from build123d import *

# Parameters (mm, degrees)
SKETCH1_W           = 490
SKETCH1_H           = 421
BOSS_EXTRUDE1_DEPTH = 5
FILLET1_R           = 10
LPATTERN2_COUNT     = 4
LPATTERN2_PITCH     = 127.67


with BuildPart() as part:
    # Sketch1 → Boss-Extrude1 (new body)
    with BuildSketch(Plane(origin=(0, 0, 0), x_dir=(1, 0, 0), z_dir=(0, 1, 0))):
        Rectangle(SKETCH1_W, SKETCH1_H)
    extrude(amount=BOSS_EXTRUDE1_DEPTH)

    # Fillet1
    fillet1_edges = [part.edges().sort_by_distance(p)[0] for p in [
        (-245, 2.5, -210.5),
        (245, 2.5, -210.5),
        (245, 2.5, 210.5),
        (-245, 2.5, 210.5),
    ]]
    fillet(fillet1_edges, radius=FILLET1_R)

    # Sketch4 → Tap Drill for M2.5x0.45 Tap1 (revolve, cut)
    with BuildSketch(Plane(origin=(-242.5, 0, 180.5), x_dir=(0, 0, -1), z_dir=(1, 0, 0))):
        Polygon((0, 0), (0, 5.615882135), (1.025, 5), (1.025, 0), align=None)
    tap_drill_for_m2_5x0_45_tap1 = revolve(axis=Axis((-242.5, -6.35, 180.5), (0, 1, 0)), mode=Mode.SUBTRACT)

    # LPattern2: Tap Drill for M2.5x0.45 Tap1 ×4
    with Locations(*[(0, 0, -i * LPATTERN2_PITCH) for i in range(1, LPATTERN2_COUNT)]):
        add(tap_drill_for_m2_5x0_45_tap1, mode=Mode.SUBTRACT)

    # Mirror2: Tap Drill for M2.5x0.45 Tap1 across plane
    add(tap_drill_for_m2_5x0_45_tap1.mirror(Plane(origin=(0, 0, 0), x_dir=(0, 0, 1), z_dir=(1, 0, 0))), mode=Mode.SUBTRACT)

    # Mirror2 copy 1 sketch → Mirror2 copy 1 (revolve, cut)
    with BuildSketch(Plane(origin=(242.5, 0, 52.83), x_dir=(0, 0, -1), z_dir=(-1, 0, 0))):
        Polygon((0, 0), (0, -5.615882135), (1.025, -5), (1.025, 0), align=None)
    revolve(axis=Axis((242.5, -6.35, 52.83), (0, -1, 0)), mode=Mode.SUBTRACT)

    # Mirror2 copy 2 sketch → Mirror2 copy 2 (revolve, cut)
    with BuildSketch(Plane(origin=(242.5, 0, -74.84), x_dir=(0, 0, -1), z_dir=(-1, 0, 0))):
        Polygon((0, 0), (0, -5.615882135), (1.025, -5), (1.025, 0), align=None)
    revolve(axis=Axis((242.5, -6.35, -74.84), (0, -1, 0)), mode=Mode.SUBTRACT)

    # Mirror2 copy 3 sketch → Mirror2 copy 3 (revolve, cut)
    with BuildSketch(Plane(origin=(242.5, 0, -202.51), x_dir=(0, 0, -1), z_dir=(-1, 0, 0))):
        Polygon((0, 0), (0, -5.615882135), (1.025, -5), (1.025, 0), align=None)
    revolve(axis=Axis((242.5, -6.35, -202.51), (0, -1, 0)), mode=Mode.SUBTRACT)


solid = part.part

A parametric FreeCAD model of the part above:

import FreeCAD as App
import Part
import Sketcher
Q = App.Units.Quantity


def edges_at(feature, points):
    """Names of the edges that pass closest to the given points."""
    edges = feature.Shape.Edges
    near = lambda p: min(range(len(edges)), key=lambda i: edges[i].distToShape(Part.Vertex(*p))[0])
    return sorted({f"Edge{near(p) + 1}" for p in points})


def add_polygon(sketch, points):
    """Adds a closed chain of lines whose ends are joined by coincident constraints."""
    first, n = sketch.GeometryCount, len(points)
    for a, b in zip(points, points[1:] + points[:1]):
        sketch.addGeometry(Part.LineSegment(App.Vector(*a, 0), App.Vector(*b, 0)), False)
    for i in range(n):
        sketch.addConstraint(Sketcher.Constraint("Coincident", first + i, 2, first + (i + 1) % n, 1))

doc = App.newDocument("Part")
body = doc.addObject("PartDesign::Body", "Body")

# Sketch on XZ plane
sketch1 = doc.addObject("Sketcher::SketchObject", "Sketch")
body.addObject(sketch1)
sketch1.AttachmentSupport = (doc.XZ_Plane, [""])
sketch1.MapMode = "FlatFace"
add_polygon(sketch1, [(-245, -210), (-245, 210), (245, 210), (245, -210)])  # lines 0-3
sketch1.addConstraint([
    Sketcher.Constraint("Vertical", 0),
    Sketcher.Constraint("Horizontal", 1),
    Sketcher.Constraint("Vertical", 2),
    Sketcher.Constraint("Horizontal", 3),
    Sketcher.Constraint("Symmetric", 0, 2, 2, 2, -1, 1),
    Sketcher.Constraint("DistanceX", 1, 1, 1, 2, 490.0),
    Sketcher.Constraint("DistanceY", 0, 1, 0, 2, 421.0),
])
pad1 = doc.addObject("PartDesign::Pad", "Pad")
body.addObject(pad1)
pad1.Profile = sketch1
pad1.Length = 5
pad1.Reversed = True
doc.recompute()

fillet = doc.addObject("PartDesign::Fillet", "Fillet")
body.addObject(fillet)
fillet.Base = (pad1, edges_at(pad1, [
    (-245, 2.5, -210.5),
    (245, 2.5, -210.5),
    (245, 2.5, 210.5),
    (-245, 2.5, 210.5),
]))
fillet.Radius = 10

# Sketch on YZ plane
sketch2 = doc.addObject("Sketcher::SketchObject", "Sketch001")
body.addObject(sketch2)
sketch2.AttachmentSupport = (doc.YZ_Plane, [""])
sketch2.MapMode = "FlatFace"
sketch2.AttachmentOffset = App.Placement(App.Vector(0, 0, -242.5), App.Rotation())
add_polygon(sketch2, [(5.6, 180.5), (0, 180.5), (0, 179.5), (5, 179.5)])  # lines 0-3
sketch2.addGeometry(Part.LineSegment(App.Vector(0, 180.5, 0), App.Vector(5.6, 180.5, 0)), True)  # axis
sketch2.addConstraint([
    Sketcher.Constraint("Horizontal", 0),
    Sketcher.Constraint("Vertical", 1),
    Sketcher.Constraint("Horizontal", 2),
    Sketcher.Constraint("Horizontal", 4),
    Sketcher.Constraint("Coincident", 4, 1, 0, 2),
    Sketcher.Constraint("PointOnObject", 0, 2, -2),
    Sketcher.Constraint("Equal", 0, 4),
    Sketcher.Constraint("DistanceX", 2, 1, 2, 2, 5.0),
    Sketcher.Constraint("Angle", 3, Q("59 deg")),
    Sketcher.Constraint("DistanceY", -1, 1, 0, 2, 180.5),
    Sketcher.Constraint("DistanceY", 1, 2, 1, 1, 1.025),
])
groove = doc.addObject("PartDesign::Groove", "Groove")
body.addObject(groove)
groove.Profile = sketch2
groove.ReferenceAxis = (sketch2, ["Axis0"])
groove.Angle = 360
doc.recompute()

linearpattern = doc.addObject("PartDesign::LinearPattern", "LinearPattern")
body.addObject(linearpattern)
linearpattern.Originals = [groove]
linearpattern.Direction = (doc.Z_Axis, [""])
linearpattern.Mode = "offset"
linearpattern.Offset = 127.67
linearpattern.Occurrences = 4
linearpattern.Reversed = True
body.Tip = linearpattern
doc.recompute()

mirrored = doc.addObject("PartDesign::Mirrored", "Mirrored")
body.addObject(mirrored)
mirrored.Originals = [groove]
mirrored.MirrorPlane = (doc.YZ_Plane, [""])
body.Tip = mirrored

# Sketch on YZ plane
sketch3 = doc.addObject("Sketcher::SketchObject", "Sketch002")
body.addObject(sketch3)
sketch3.AttachmentSupport = (doc.YZ_Plane, [""])
sketch3.MapMode = "FlatFace"
sketch3.AttachmentOffset = App.Placement(App.Vector(0, 0, 242.5), App.Rotation())
add_polygon(sketch3, [(0, 52.8), (5.6, 52.8), (5, 51.8), (0, 51.8)])  # lines 0-3
sketch3.addGeometry(Part.LineSegment(App.Vector(5.6, 52.8, 0), App.Vector(0, 52.8, 0)), True)  # axis
sketch3.addConstraint([
    Sketcher.Constraint("Horizontal", 0),
    Sketcher.Constraint("Horizontal", 2),
    Sketcher.Constraint("Vertical", 3),
    Sketcher.Constraint("Horizontal", 4),
    Sketcher.Constraint("Coincident", 4, 1, 0, 2),
    Sketcher.Constraint("PointOnObject", 2, 2, -2),
    Sketcher.Constraint("PointOnObject", 4, 2, -2),
    Sketcher.Constraint("DistanceX", 2, 2, 2, 1, 5.0),
    Sketcher.Constraint("Angle", 1, Q("-121 deg")),
    Sketcher.Constraint("DistanceY", 3, 1, 3, 2, 1.025),
    Sketcher.Constraint("DistanceY", -1, 1, 0, 2, 52.83),
])
groove2 = doc.addObject("PartDesign::Groove", "Groove001")
body.addObject(groove2)
groove2.Profile = sketch3
groove2.ReferenceAxis = (sketch3, ["Axis0"])
groove2.Angle = 360

# Sketch on YZ plane
sketch4 = doc.addObject("Sketcher::SketchObject", "Sketch003")
body.addObject(sketch4)
sketch4.AttachmentSupport = (doc.YZ_Plane, [""])
sketch4.MapMode = "FlatFace"
sketch4.AttachmentOffset = App.Placement(App.Vector(0, 0, 242.5), App.Rotation())
add_polygon(sketch4, [(0, -74.8), (5.6, -74.8), (5, -75.9), (0, -75.9)])  # lines 0-3
sketch4.addGeometry(Part.LineSegment(App.Vector(5.6, -74.8, 0), App.Vector(0, -74.8, 0)), True)  # axis
sketch4.addConstraint([
    Sketcher.Constraint("Horizontal", 0),
    Sketcher.Constraint("Horizontal", 2),
    Sketcher.Constraint("Vertical", 3),
    Sketcher.Constraint("Horizontal", 4),
    Sketcher.Constraint("Coincident", 4, 1, 0, 2),
    Sketcher.Constraint("PointOnObject", 2, 2, -2),
    Sketcher.Constraint("PointOnObject", 4, 2, -2),
    Sketcher.Constraint("DistanceX", 2, 2, 2, 1, 5.0),
    Sketcher.Constraint("Angle", 1, Q("-121 deg")),
    Sketcher.Constraint("DistanceY", 3, 1, 3, 2, 1.025),
    Sketcher.Constraint("DistanceY", 0, 2, -1, 1, 74.84),
])
groove3 = doc.addObject("PartDesign::Groove", "Groove002")
body.addObject(groove3)
groove3.Profile = sketch4
groove3.ReferenceAxis = (sketch4, ["Axis0"])
groove3.Angle = 360

# Sketch on YZ plane
sketch5 = doc.addObject("Sketcher::SketchObject", "Sketch004")
body.addObject(sketch5)
sketch5.AttachmentSupport = (doc.YZ_Plane, [""])
sketch5.MapMode = "FlatFace"
sketch5.AttachmentOffset = App.Placement(App.Vector(0, 0, 242.5), App.Rotation())
add_polygon(sketch5, [(0, -202.5), (5.6, -202.5), (5, -203.5), (0, -203.5)])  # lines 0-3
sketch5.addGeometry(Part.LineSegment(App.Vector(5.6, -202.5, 0), App.Vector(0, -202.5, 0)), True)  # axis
sketch5.addConstraint([
    Sketcher.Constraint("Horizontal", 0),
    Sketcher.Constraint("Horizontal", 2),
    Sketcher.Constraint("Vertical", 3),
    Sketcher.Constraint("Horizontal", 4),
    Sketcher.Constraint("Coincident", 4, 1, 0, 2),
    Sketcher.Constraint("PointOnObject", 2, 2, -2),
    Sketcher.Constraint("PointOnObject", 4, 2, -2),
    Sketcher.Constraint("DistanceX", 2, 2, 2, 1, 5.0),
    Sketcher.Constraint("Angle", 1, Q("-121 deg")),
    Sketcher.Constraint("DistanceY", 3, 1, 3, 2, 1.025),
    Sketcher.Constraint("DistanceY", 0, 2, -1, 1, 202.51),
])
groove4 = doc.addObject("PartDesign::Groove", "Groove003")
body.addObject(groove4)
groove4.Profile = sketch5
groove4.ReferenceAxis = (sketch5, ["Axis0"])
groove4.Angle = 360

doc.recompute()
